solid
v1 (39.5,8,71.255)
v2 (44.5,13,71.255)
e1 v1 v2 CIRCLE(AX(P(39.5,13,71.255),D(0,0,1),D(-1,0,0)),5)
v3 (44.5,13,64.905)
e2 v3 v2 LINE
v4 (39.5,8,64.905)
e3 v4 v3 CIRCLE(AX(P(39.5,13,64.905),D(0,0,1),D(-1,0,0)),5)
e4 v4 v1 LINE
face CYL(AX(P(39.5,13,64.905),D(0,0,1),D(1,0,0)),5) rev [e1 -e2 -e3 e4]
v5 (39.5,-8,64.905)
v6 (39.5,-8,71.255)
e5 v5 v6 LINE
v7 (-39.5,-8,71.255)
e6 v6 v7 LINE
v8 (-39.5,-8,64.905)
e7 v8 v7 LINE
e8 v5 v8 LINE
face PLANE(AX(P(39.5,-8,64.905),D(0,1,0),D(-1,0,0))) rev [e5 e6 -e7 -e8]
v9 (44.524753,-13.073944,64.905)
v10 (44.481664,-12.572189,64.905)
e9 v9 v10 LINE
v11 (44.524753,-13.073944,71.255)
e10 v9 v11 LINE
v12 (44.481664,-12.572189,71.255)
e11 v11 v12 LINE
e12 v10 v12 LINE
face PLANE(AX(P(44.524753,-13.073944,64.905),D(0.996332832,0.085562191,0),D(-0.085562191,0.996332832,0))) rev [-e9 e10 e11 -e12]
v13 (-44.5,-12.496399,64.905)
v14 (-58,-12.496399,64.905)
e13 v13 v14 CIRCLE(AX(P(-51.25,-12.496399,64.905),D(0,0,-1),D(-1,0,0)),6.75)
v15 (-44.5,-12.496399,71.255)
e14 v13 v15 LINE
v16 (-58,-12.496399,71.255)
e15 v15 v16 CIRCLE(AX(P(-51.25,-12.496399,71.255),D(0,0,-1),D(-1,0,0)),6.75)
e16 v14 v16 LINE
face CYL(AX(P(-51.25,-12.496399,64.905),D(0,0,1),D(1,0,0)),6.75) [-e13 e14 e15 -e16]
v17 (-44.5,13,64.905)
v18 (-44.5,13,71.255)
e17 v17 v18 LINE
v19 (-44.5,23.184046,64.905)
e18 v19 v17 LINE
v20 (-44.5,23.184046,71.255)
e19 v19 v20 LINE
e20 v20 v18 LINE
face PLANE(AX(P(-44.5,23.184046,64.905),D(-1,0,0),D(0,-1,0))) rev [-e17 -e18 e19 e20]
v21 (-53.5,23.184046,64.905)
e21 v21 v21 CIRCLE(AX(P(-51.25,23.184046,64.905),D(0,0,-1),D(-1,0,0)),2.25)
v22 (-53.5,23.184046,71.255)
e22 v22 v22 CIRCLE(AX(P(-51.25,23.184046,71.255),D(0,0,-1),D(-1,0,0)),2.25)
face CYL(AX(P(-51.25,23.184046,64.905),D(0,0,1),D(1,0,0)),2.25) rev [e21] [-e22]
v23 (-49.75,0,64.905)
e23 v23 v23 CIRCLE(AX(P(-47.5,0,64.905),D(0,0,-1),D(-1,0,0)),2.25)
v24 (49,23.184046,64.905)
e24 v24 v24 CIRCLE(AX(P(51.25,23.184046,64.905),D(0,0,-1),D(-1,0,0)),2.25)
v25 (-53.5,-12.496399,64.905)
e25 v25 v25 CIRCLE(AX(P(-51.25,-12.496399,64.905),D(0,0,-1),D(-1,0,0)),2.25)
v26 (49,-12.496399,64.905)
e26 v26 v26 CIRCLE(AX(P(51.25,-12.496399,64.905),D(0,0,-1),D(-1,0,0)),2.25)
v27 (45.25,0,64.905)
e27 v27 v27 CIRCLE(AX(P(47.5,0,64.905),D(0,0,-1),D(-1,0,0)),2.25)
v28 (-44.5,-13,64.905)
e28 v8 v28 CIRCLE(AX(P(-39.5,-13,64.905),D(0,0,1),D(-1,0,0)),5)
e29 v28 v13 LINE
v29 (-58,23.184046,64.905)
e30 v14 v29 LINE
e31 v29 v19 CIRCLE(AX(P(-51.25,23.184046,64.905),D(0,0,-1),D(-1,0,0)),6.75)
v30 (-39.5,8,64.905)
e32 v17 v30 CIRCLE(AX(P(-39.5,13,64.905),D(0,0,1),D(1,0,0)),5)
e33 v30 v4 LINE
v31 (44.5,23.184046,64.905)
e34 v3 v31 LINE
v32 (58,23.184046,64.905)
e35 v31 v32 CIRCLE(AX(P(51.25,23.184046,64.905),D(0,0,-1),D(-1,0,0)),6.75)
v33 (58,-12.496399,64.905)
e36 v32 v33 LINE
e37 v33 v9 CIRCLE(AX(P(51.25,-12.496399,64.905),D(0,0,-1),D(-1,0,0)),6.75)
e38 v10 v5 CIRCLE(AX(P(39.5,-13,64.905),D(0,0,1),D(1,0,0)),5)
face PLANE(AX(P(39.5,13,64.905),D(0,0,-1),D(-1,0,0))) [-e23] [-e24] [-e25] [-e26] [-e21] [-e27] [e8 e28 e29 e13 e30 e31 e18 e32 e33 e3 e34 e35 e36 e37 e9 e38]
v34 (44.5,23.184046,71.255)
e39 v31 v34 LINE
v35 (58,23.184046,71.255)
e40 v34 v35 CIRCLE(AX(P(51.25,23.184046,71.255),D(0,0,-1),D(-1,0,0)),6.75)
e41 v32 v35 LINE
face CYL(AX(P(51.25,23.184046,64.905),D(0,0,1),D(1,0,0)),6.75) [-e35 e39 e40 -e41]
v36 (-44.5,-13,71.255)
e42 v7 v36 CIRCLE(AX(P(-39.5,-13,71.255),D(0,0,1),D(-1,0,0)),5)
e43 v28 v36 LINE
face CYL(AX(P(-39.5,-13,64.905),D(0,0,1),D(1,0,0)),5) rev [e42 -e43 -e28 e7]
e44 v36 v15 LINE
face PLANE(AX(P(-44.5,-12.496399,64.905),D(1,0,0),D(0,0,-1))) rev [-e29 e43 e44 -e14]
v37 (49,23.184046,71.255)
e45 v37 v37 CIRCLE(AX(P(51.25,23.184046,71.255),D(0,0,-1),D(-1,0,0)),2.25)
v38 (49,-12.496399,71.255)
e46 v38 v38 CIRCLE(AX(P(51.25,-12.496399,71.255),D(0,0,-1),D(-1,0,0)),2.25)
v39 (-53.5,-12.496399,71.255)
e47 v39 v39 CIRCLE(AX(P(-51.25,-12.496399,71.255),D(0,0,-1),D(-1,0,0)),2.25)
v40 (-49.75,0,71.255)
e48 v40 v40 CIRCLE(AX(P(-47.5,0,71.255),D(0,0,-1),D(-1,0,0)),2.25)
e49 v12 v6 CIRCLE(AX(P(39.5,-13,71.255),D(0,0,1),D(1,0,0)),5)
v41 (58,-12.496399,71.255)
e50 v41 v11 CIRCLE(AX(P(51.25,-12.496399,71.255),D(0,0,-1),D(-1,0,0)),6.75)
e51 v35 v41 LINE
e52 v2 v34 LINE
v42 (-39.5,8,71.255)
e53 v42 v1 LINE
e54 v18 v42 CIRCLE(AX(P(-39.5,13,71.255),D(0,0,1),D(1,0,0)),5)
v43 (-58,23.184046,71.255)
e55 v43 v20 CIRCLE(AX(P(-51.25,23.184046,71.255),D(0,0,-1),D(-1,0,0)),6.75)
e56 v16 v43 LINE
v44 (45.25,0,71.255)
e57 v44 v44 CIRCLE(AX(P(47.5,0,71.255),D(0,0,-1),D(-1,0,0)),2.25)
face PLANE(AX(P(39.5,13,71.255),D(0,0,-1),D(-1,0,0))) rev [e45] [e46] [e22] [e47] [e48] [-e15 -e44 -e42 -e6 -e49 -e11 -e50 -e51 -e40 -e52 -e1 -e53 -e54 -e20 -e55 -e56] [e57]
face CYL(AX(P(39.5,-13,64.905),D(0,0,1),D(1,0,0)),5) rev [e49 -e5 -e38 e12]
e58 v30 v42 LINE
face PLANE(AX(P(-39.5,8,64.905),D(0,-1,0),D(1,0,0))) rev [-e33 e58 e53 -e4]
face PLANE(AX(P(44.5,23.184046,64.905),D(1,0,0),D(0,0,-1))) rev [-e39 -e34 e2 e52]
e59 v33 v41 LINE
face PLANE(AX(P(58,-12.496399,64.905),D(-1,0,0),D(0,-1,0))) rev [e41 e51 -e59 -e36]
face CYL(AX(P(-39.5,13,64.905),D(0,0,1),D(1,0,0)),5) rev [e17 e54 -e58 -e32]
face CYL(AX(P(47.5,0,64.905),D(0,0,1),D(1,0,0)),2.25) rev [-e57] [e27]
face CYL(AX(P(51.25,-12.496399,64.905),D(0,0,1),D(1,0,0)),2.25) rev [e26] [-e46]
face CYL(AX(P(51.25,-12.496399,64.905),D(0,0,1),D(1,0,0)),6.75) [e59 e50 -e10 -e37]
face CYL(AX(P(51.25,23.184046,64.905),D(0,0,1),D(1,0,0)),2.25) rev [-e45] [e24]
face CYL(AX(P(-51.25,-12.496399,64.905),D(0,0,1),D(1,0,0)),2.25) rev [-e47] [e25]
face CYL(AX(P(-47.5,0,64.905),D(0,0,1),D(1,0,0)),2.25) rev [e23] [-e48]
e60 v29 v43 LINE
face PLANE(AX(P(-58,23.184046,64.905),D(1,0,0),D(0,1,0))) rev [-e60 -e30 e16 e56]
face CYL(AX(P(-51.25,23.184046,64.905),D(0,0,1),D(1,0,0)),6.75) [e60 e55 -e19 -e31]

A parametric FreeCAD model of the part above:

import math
import FreeCAD as App
import Part
import Sketcher

doc = App.newDocument("Part")
body = doc.addObject("PartDesign::Body", "Body")

sketch1 = body.newObject("Sketcher::SketchObject", "Sketch")
sketch1.AttachmentSupport = (doc.getObject("XY_Plane"), [""])
sketch1.MapMode = "FlatFace"
sketch1.AttachmentOffset = App.Placement(App.Vector(0, 0, 71.255), App.Rotation())
sketch1.addGeometry(Part.LineSegment(App.Vector(39.5, -8, 0), App.Vector(-39.5, -8, 0)), False)
sketch1.addGeometry(Part.ArcOfCircle(Part.Circle(App.Vector(-39.5, -13, 0), App.Vector(0, 0, 1), 5), math.radians(90), math.radians(180)), False)
sketch1.addGeometry(Part.LineSegment(App.Vector(-44.5, -13, 0), App.Vector(-44.5, -12.496399, 0)), False)
sketch1.addGeometry(Part.ArcOfCircle(Part.Circle(App.Vector(-51.25, -12.496399, 0), App.Vector(0, 0, 1), 6.75), math.radians(180), math.radians(360)), False)
sketch1.addGeometry(Part.LineSegment(App.Vector(-58, -12.496399, 0), App.Vector(-58, 23.184046, 0)), False)
sketch1.addGeometry(Part.ArcOfCircle(Part.Circle(App.Vector(-51.25, 23.184046, 0), App.Vector(0, 0, 1), 6.75), math.radians(0), math.radians(180)), False)
sketch1.addGeometry(Part.LineSegment(App.Vector(-44.5, 23.184046, 0), App.Vector(-44.5, 13, 0)), False)
sketch1.addGeometry(Part.ArcOfCircle(Part.Circle(App.Vector(-39.5, 13, 0), App.Vector(0, 0, 1), 5), math.radians(180), math.radians(270)), False)
sketch1.addGeometry(Part.LineSegment(App.Vector(-39.5, 8, 0), App.Vector(39.5, 8, 0)), False)
sketch1.addGeometry(Part.ArcOfCircle(Part.Circle(App.Vector(39.5, 13, 0), App.Vector(0, 0, 1), 5), math.radians(-90), math.radians(0)), False)
sketch1.addGeometry(Part.LineSegment(App.Vector(44.5, 13, 0), App.Vector(44.5, 23.184046, 0)), False)
sketch1.addGeometry(Part.ArcOfCircle(Part.Circle(App.Vector(51.25, 23.184046, 0), App.Vector(0, 0, 1), 6.75), math.radians(0), math.radians(180)), False)
sketch1.addGeometry(Part.LineSegment(App.Vector(58, 23.184046, 0), App.Vector(58, -12.496399, 0)), False)
sketch1.addGeometry(Part.ArcOfCircle(Part.Circle(App.Vector(51.25, -12.496399, 0), App.Vector(0, 0, 1), 6.75), math.radians(-175.091646), math.radians(0)), False)
sketch1.addGeometry(Part.LineSegment(App.Vector(44.524753, -13.073944, 0), App.Vector(44.481664, -12.572189, 0)), False)
sketch1.addGeometry(Part.ArcOfCircle(Part.Circle(App.Vector(39.5, -13, 0), App.Vector(0, 0, 1), 5), math.radians(4.908354), math.radians(90)), False)
sketch1.addGeometry(Part.Circle(App.Vector(51.25, -12.496399, 0), App.Vector(0, 0, 1), 2.25), False)
sketch1.addGeometry(Part.Circle(App.Vector(47.5, 0, 0), App.Vector(0, 0, 1), 2.25), False)
sketch1.addGeometry(Part.Circle(App.Vector(-51.25, -12.496399, 0), App.Vector(0, 0, 1), 2.25), False)
sketch1.addGeometry(Part.Circle(App.Vector(-47.5, 0, 0), App.Vector(0, 0, 1), 2.25), False)
sketch1.addGeometry(Part.Circle(App.Vector(51.25, 23.184046, 0), App.Vector(0, 0, 1), 2.25), False)
sketch1.addGeometry(Part.Circle(App.Vector(-51.25, 23.184046, 0), App.Vector(0, 0, 1), 2.25), False)
sketch1.addConstraint(Sketcher.Constraint("Tangent", 0, 2, 1, 1))
sketch1.addConstraint(Sketcher.Constraint("Tangent", 1, 2, 2, 1))
sketch1.addConstraint(Sketcher.Constraint("Tangent", 2, 2, 3, 2))
sketch1.addConstraint(Sketcher.Constraint("Tangent", 3, 1, 4, 1))
sketch1.addConstraint(Sketcher.Constraint("Tangent", 4, 2, 5, 2))
sketch1.addConstraint(Sketcher.Constraint("Tangent", 5, 1, 6, 1))
sketch1.addConstraint(Sketcher.Constraint("Tangent", 6, 2, 7, 1))
sketch1.addConstraint(Sketcher.Constraint("Tangent", 7, 2, 8, 1))
sketch1.addConstraint(Sketcher.Constraint("Tangent", 8, 2, 9, 1))
sketch1.addConstraint(Sketcher.Constraint("Tangent", 9, 2, 10, 1))
sketch1.addConstraint(Sketcher.Constraint("Tangent", 10, 2, 11, 2))
sketch1.addConstraint(Sketcher.Constraint("Tangent", 11, 1, 12, 1))
sketch1.addConstraint(Sketcher.Constraint("Tangent", 12, 2, 13, 2))
sketch1.addConstraint(Sketcher.Constraint("Tangent", 13, 1, 14, 1))
sketch1.addConstraint(Sketcher.Constraint("Tangent", 14, 2, 15, 1))
sketch1.addConstraint(Sketcher.Constraint("Tangent", 15, 2, 0, 1))
sketch1.addConstraint(Sketcher.Constraint("Horizontal", 0))
sketch1.addConstraint(Sketcher.Constraint("Vertical", 2))
sketch1.addConstraint(Sketcher.Constraint("Vertical", 4))
sketch1.addConstraint(Sketcher.Constraint("Vertical", 6))
sketch1.addConstraint(Sketcher.Constraint("Horizontal", 8))
sketch1.addConstraint(Sketcher.Constraint("Vertical", 10))
sketch1.addConstraint(Sketcher.Constraint("Vertical", 12))
sketch1.addConstraint(Sketcher.Constraint("Coincident", 16, 3, 13, 3))
sketch1.addConstraint(Sketcher.Constraint("Coincident", 18, 3, 3, 3))
sketch1.addConstraint(Sketcher.Constraint("Coincident", 20, 3, 11, 3))
sketch1.addConstraint(Sketcher.Constraint("Coincident", 21, 3, 5, 3))
sketch1.addConstraint(Sketcher.Constraint("Equal", 3, 5))
sketch1.addConstraint(Sketcher.Constraint("Equal", 1, 7))
sketch1.addConstraint(Sketcher.Constraint("Equal", 7, 9))
sketch1.addConstraint(Sketcher.Constraint("Equal", 5, 11))
sketch1.addConstraint(Sketcher.Constraint("Equal", 11, 13))
sketch1.addConstraint(Sketcher.Constraint("Equal", 9, 15))
sketch1.addConstraint(Sketcher.Constraint("Equal", 16, 17))
sketch1.addConstraint(Sketcher.Constraint("Equal", 17, 18))
sketch1.addConstraint(Sketcher.Constraint("Equal", 18, 19))
sketch1.addConstraint(Sketcher.Constraint("Equal", 19, 20))
sketch1.addConstraint(Sketcher.Constraint("Equal", 20, 21))
sketch1.addConstraint(Sketcher.Constraint("Symmetric", 1, 3, 9, 3, -1, 1))
sketch1.addConstraint(Sketcher.Constraint("Symmetric", 17, 3, 19, 3, -1, 1))
sketch1.addConstraint(Sketcher.Constraint("PointOnObject", 17, 3, -1))
sketch1.addConstraint(Sketcher.Constraint("Horizontal", 5, 3, 11, 3))
sketch1.addConstraint(Sketcher.Constraint("Horizontal", 3, 3, 13, 3))
sketch1.addConstraint(Sketcher.Constraint("Vertical", 9, 3, 15, 3))
sketch1.addConstraint(Sketcher.Constraint("Radius", 1, 5.0))
sketch1.addConstraint(Sketcher.Constraint("Diameter", 16, 4.5))
sketch1.addConstraint(Sketcher.Constraint("DistanceX", 0, 2, 0, 1, 79.0))
sketch1.addConstraint(Sketcher.Constraint("Radius", 3, 6.75))
sketch1.addConstraint(Sketcher.Constraint("DistanceY", 1, 3, -1, 1, 13.0))
sketch1.addConstraint(Sketcher.Constraint("DistanceX", 9, 3, 17, 3, 8.0))
sketch1.addConstraint(Sketcher.Constraint("DistanceY", 2, 1, 2, 2, 0.503601))
sketch1.addConstraint(Sketcher.Constraint("DistanceY", 4, 1, 4, 2, 35.680445))
pad1 = body.newObject("PartDesign::Pad", "Pad")
pad1.Profile = sketch1
pad1.Length = 6.35
pad1.Reversed = True

doc.recompute()
